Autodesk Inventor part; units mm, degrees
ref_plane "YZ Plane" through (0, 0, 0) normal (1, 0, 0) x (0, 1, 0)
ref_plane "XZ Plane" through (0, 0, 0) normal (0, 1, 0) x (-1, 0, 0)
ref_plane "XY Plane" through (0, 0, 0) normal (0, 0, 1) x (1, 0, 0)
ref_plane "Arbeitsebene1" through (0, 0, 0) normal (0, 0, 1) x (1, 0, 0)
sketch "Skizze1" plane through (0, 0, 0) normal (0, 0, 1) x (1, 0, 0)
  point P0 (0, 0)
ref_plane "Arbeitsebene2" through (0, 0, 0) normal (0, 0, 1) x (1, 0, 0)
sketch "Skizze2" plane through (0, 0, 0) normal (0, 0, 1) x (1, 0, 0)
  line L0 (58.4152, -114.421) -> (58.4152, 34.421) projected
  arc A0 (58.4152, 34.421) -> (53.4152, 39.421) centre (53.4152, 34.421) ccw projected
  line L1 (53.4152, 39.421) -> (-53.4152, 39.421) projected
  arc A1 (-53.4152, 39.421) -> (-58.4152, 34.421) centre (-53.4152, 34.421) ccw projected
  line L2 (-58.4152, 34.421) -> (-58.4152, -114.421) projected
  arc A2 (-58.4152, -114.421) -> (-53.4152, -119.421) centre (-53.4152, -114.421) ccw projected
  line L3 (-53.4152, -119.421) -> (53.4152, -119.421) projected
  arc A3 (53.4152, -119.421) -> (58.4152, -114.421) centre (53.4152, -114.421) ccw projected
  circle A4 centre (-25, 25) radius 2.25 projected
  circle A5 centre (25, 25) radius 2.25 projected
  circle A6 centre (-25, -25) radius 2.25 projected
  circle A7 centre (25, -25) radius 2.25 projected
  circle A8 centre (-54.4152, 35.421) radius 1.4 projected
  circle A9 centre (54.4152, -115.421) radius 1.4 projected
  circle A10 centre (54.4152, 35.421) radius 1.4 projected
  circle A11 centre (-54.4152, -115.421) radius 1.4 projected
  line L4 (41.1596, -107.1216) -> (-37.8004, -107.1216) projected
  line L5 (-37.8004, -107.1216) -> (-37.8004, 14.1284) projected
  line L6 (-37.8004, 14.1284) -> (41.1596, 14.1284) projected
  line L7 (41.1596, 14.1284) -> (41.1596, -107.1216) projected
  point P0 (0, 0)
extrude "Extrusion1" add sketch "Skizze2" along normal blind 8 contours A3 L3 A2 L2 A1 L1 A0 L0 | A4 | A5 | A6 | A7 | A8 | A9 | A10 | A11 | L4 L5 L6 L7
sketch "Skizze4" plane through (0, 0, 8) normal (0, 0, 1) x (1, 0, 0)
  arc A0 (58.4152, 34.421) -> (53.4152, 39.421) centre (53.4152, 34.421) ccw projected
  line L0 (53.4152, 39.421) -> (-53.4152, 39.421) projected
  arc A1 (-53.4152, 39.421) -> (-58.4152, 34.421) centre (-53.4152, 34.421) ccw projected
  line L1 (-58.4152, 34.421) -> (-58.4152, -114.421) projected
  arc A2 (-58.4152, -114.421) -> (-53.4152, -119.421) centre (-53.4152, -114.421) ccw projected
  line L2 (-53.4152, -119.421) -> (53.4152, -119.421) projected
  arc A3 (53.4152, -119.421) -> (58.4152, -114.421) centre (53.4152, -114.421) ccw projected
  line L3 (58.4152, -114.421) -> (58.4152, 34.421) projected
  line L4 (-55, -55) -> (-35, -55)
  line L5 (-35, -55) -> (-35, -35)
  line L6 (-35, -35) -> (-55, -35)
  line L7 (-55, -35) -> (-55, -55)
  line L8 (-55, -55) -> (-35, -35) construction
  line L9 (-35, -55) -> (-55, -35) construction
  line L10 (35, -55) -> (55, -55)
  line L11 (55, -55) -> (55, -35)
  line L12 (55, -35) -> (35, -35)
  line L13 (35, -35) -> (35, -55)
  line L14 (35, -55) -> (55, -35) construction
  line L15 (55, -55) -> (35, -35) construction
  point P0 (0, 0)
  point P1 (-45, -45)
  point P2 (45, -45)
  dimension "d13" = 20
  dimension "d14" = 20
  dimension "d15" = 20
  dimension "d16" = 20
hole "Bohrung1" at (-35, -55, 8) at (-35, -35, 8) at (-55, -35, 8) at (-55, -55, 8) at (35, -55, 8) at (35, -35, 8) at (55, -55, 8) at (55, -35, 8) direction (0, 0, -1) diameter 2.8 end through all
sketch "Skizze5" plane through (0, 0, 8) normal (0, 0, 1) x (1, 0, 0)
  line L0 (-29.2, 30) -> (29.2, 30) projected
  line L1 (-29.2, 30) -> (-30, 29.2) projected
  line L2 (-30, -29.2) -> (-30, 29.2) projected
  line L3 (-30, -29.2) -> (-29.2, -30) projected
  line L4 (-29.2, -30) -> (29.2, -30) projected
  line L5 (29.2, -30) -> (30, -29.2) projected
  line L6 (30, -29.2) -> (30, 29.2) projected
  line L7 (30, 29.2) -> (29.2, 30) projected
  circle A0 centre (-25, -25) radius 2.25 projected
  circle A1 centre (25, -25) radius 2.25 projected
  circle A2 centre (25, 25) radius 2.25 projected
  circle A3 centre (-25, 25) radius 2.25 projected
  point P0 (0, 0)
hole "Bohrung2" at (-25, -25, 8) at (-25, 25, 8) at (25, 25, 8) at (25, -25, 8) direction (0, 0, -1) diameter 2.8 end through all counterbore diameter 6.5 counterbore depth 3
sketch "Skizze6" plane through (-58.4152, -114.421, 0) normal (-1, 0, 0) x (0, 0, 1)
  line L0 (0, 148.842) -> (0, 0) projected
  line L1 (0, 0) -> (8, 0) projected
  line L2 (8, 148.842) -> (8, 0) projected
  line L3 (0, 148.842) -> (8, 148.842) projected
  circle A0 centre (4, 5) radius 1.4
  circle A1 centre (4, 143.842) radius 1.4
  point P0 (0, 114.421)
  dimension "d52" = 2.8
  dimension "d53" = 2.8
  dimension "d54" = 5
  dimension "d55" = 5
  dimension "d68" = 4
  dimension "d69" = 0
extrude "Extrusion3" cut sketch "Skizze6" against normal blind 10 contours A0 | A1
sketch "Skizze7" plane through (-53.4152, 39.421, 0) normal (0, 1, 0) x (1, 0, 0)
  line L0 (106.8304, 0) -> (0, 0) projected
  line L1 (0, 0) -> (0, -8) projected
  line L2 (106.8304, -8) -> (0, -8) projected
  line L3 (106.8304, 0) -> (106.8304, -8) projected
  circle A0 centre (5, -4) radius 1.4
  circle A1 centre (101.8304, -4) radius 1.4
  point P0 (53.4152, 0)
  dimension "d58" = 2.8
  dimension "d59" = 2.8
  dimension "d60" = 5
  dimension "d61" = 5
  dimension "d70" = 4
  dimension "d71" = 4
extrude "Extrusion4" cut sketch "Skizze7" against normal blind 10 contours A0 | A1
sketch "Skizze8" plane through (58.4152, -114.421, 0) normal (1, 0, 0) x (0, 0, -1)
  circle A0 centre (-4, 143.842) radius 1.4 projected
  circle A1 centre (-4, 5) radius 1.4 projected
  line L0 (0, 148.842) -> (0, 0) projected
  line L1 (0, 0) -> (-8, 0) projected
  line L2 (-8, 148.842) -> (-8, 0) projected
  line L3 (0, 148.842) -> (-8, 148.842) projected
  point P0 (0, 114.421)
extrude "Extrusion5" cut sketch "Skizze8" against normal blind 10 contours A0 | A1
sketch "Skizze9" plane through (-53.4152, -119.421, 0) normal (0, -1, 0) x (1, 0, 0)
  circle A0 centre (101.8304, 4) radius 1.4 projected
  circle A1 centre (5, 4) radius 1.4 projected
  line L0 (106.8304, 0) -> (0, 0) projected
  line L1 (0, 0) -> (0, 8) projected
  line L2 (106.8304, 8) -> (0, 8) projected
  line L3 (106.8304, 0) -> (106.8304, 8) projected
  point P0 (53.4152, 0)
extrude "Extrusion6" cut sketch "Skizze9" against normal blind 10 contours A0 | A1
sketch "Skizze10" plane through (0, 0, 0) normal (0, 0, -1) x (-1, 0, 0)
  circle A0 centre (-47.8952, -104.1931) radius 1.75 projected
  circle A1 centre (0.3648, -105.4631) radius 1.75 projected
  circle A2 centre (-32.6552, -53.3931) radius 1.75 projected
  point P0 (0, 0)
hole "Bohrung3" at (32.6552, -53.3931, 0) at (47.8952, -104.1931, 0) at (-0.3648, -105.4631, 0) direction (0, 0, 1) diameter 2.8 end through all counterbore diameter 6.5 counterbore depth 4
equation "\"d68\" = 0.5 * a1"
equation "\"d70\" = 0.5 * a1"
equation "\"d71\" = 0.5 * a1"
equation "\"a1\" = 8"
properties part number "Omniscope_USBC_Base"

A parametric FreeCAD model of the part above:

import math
import FreeCAD as App
import Part
import Sketcher
from FreeCAD import Vector

doc = App.newDocument("Part")
body = doc.addObject("PartDesign::Body", "Body")

sketch1 = doc.addObject("Sketcher::SketchObject", "Sketch")
body.addObject(sketch1)
sketch1.AttachmentSupport = (doc.XY_Plane, [""])
sketch1.MapMode = "FlatFace"
sketch1.addGeometry([
    Part.ArcOfCircle(Part.Circle(Vector(53, -114, 0), Vector(0, 0, 1), 5), math.radians(-90), math.radians(0)),
    Part.LineSegment(Vector(58, -114, 0), Vector(58, 34, 0)),
    Part.ArcOfCircle(Part.Circle(Vector(53, 34, 0), Vector(0, 0, 1), 5), math.radians(0), math.radians(90)),
    Part.LineSegment(Vector(53, 39, 0), Vector(-53, 39, 0)),
    Part.ArcOfCircle(Part.Circle(Vector(-53, 34, 0), Vector(0, 0, 1), 5), math.radians(90), math.radians(180)),
    Part.LineSegment(Vector(-58, 34, 0), Vector(-58, -114, 0)),
    Part.ArcOfCircle(Part.Circle(Vector(-53, -114, 0), Vector(0, 0, 1), 5), math.radians(180), math.radians(270)),
    Part.LineSegment(Vector(-53, -119, 0), Vector(53, -119, 0)),
], False)
sketch1.addConstraint([
    Sketcher.Constraint("Tangent", 0, 2, 1, 1),
    Sketcher.Constraint("Tangent", 1, 2, 2, 1),
    Sketcher.Constraint("Tangent", 2, 2, 3, 1),
    Sketcher.Constraint("Tangent", 3, 2, 4, 1),
    Sketcher.Constraint("Tangent", 4, 2, 5, 1),
    Sketcher.Constraint("Tangent", 5, 2, 6, 1),
    Sketcher.Constraint("Tangent", 6, 2, 7, 1),
    Sketcher.Constraint("Tangent", 7, 2, 0, 1),
    Sketcher.Constraint("Vertical", 1),
    Sketcher.Constraint("Horizontal", 3),
    Sketcher.Constraint("Vertical", 5),
    Sketcher.Constraint("Horizontal", 7),
    Sketcher.Constraint("Equal", 0, 2),
    Sketcher.Constraint("Equal", 2, 4),
    Sketcher.Constraint("Equal", 4, 6),
    Sketcher.Constraint("Radius", 0, 5.0),
    Sketcher.Constraint("DistanceY", 1, 1, 1, 2, 148.842),
    Sketcher.Constraint("DistanceX", 3, 2, 3, 1, 106.8304),
    Sketcher.Constraint("DistanceY", 0, 3, -1, 1, 114.421),
    Sketcher.Constraint("DistanceX", -1, 1, 0, 3, 53.4152),
])
pad1 = doc.addObject("PartDesign::Pad", "Pad")
body.addObject(pad1)
pad1.Profile = sketch1
pad1.Length = 8

sketch2 = doc.addObject("Sketcher::SketchObject", "Sketch001")
body.addObject(sketch2)
sketch2.AttachmentSupport = (doc.XY_Plane, [""])
sketch2.MapMode = "FlatFace"
sketch2.AttachmentOffset = App.Placement(Vector(0, 0, 8), App.Rotation())
sketch2.addGeometry([
    Part.Circle(Vector(-35, -55, 0), Vector(0, 0, 1), 1.4),
    Part.Circle(Vector(-35, -35, 0), Vector(0, 0, 1), 1.4),
    Part.Circle(Vector(-55, -35, 0), Vector(0, 0, 1), 1.4),
    Part.Circle(Vector(-55, -55, 0), Vector(0, 0, 1), 1.4),
    Part.Circle(Vector(35, -55, 0), Vector(0, 0, 1), 1.4),
    Part.Circle(Vector(35, -35, 0), Vector(0, 0, 1), 1.4),
    Part.Circle(Vector(55, -55, 0), Vector(0, 0, 1), 1.4),
    Part.Circle(Vector(55, -35, 0), Vector(0, 0, 1), 1.4),
], False)
sketch2.addConstraint([
    Sketcher.Constraint("Equal", 0, 1),
    Sketcher.Constraint("Equal", 1, 2),
    Sketcher.Constraint("Equal", 2, 3),
    Sketcher.Constraint("Equal", 3, 4),
    Sketcher.Constraint("Equal", 4, 5),
    Sketcher.Constraint("Equal", 5, 6),
    Sketcher.Constraint("Equal", 6, 7),
    Sketcher.Constraint("Symmetric", 0, 3, 4, 3, -2),
    Sketcher.Constraint("Symmetric", 1, 3, 5, 3, -2),
    Sketcher.Constraint("Symmetric", 3, 3, 6, 3, -2),
    Sketcher.Constraint("Symmetric", 2, 3, 7, 3, -2),
    Sketcher.Constraint("Horizontal", 1, 3, 2, 3),
    Sketcher.Constraint("Horizontal", 0, 3, 3, 3),
    Sketcher.Constraint("Vertical", 0, 3, 1, 3),
    Sketcher.Constraint("Vertical", 2, 3, 3, 3),
    Sketcher.Constraint("Diameter", 0, 2.8),
    Sketcher.Constraint("DistanceX", 0, 3, -1, 1, 35.0),
    Sketcher.Constraint("DistanceY", 0, 3, -1, 1, 55.0),
    Sketcher.Constraint("DistanceY", 1, 3, -1, 1, 35.0),
    Sketcher.Constraint("DistanceX", 2, 3, -1, 1, 55.0),
])
doc.recompute()
hole = doc.addObject("PartDesign::Hole", "Hole")
body.addObject(hole)
hole.Profile = sketch2
hole.ThreadType = "None"
hole.Diameter = 2.8
hole.DepthType = "ThroughAll"

sketch3 = doc.addObject("Sketcher::SketchObject", "Sketch002")
body.addObject(sketch3)
sketch3.AttachmentSupport = (doc.XY_Plane, [""])
sketch3.MapMode = "FlatFace"
sketch3.AttachmentOffset = App.Placement(Vector(0, 0, 8), App.Rotation())
sketch3.addGeometry([
    Part.Circle(Vector(-25, -25, 0), Vector(0, 0, 1), 1.4),
    Part.Circle(Vector(-25, 25, 0), Vector(0, 0, 1), 1.4),
    Part.Circle(Vector(25, 25, 0), Vector(0, 0, 1), 1.4),
    Part.Circle(Vector(25, -25, 0), Vector(0, 0, 1), 1.4),
], False)
sketch3.addConstraint([
    Sketcher.Constraint("Equal", 0, 1),
    Sketcher.Constraint("Equal", 1, 2),
    Sketcher.Constraint("Equal", 2, 3),
    Sketcher.Constraint("Symmetric", 0, 3, 2, 3, -1, 1),
    Sketcher.Constraint("Symmetric", 1, 3, 3, 3, -1, 1),
    Sketcher.Constraint("Symmetric", 1, 3, 2, 3, -2),
    Sketcher.Constraint("Diameter", 0, 2.8),
    Sketcher.Constraint("DistanceX", 0, 3, -1, 1, 25.0),
    Sketcher.Constraint("DistanceY", 0, 3, -1, 1, 25.0),
])
doc.recompute()
hole2 = doc.addObject("PartDesign::Hole", "Hole001")
body.addObject(hole2)
hole2.Profile = sketch3
hole2.ThreadType = "None"
hole2.Diameter = 2.8
hole2.DepthType = "ThroughAll"
hole2.HoleCutType = "Counterbore"
hole2.HoleCutDiameter = 6.5
hole2.HoleCutDepth = 3

sketch4 = doc.addObject("Sketcher::SketchObject", "Sketch003")
body.addObject(sketch4)
sketch4.AttachmentSupport = (doc.YZ_Plane, [""])
sketch4.MapMode = "FlatFace"
sketch4.AttachmentOffset = App.Placement(Vector(0, 0, -58.4152), App.Rotation())
sketch4.addGeometry([
    Part.Circle(Vector(-109.4, 4, 0), Vector(0, 0, 1), 1.4),
    Part.Circle(Vector(29.4, 4, 0), Vector(0, 0, 1), 1.4),
], False)
sketch4.addConstraint([
    Sketcher.Constraint("Equal", 0, 1),
    Sketcher.Constraint("Horizontal", 0, 3, 1, 3),
    Sketcher.Constraint("Diameter", 0, 2.8),
    Sketcher.Constraint("DistanceY", -1, 1, 0, 3, 4.0),
    Sketcher.Constraint("DistanceX", 0, 3, -1, 1, 109.421),
    Sketcher.Constraint("DistanceX", -1, 1, 1, 3, 29.421),
])
pocket1 = doc.addObject("PartDesign::Pocket", "Pocket")
body.addObject(pocket1)
pocket1.Profile = sketch4
pocket1.Length = 10
pocket1.Reversed = True

sketch5 = doc.addObject("Sketcher::SketchObject", "Sketch004")
body.addObject(sketch5)
sketch5.AttachmentSupport = (doc.XZ_Plane, [""])
sketch5.MapMode = "FlatFace"
sketch5.AttachmentOffset = App.Placement(Vector(0, 0, -39.421), App.Rotation())
sketch5.addGeometry([
    Part.Circle(Vector(-48.4, 4, 0), Vector(0, 0, 1), 1.4),
    Part.Circle(Vector(48.4, 4, 0), Vector(0, 0, 1), 1.4),
], False)
sketch5.addConstraint([
    Sketcher.Constraint("Equal", 0, 1),
    Sketcher.Constraint("Symmetric", 0, 3, 1, 3, -2),
    Sketcher.Constraint("Diameter", 0, 2.8),
    Sketcher.Constraint("DistanceY", -1, 1, 0, 3, 4.0),
    Sketcher.Constraint("DistanceX", 0, 3, -1, 1, 48.4152),
])
pocket2 = doc.addObject("PartDesign::Pocket", "Pocket001")
body.addObject(pocket2)
pocket2.Profile = sketch5
pocket2.Length = 10
pocket2.Reversed = True

sketch6 = doc.addObject("Sketcher::SketchObject", "Sketch005")
body.addObject(sketch6)
sketch6.AttachmentSupport = (doc.YZ_Plane, [""])
sketch6.MapMode = "FlatFace"
sketch6.AttachmentOffset = App.Placement(Vector(0, 0, 58.4152), App.Rotation())
sketch6.addGeometry([
    Part.Circle(Vector(29.4, 4, 0), Vector(0, 0, 1), 1.4),
    Part.Circle(Vector(-109.4, 4, 0), Vector(0, 0, 1), 1.4),
], False)
sketch6.addConstraint([
    Sketcher.Constraint("Equal", 0, 1),
    Sketcher.Constraint("Horizontal", 0, 3, 1, 3),
    Sketcher.Constraint("Diameter", 0, 2.8),
    Sketcher.Constraint("DistanceY", -1, 1, 0, 3, 4.0),
    Sketcher.Constraint("DistanceX", -1, 1, 0, 3, 29.421),
    Sketcher.Constraint("DistanceX", 1, 3, -1, 1, 109.421),
])
pocket3 = doc.addObject("PartDesign::Pocket", "Pocket002")
body.addObject(pocket3)
pocket3.Profile = sketch6
pocket3.Length = 10

sketch7 = doc.addObject("Sketcher::SketchObject", "Sketch006")
body.addObject(sketch7)
sketch7.AttachmentSupport = (doc.XZ_Plane, [""])
sketch7.MapMode = "FlatFace"
sketch7.AttachmentOffset = App.Placement(Vector(0, 0, 119.421), App.Rotation())
sketch7.addGeometry([
    Part.Circle(Vector(48.4, 4, 0), Vector(0, 0, 1), 1.4),
    Part.Circle(Vector(-48.4, 4, 0), Vector(0, 0, 1), 1.4),
], False)
sketch7.addConstraint([
    Sketcher.Constraint("Equal", 0, 1),
    Sketcher.Constraint("Symmetric", 0, 3, 1, 3, -2),
    Sketcher.Constraint("Diameter", 0, 2.8),
    Sketcher.Constraint("DistanceY", -1, 1, 0, 3, 4.0),
    Sketcher.Constraint("DistanceX", -1, 1, 0, 3, 48.4152),
])
pocket4 = doc.addObject("PartDesign::Pocket", "Pocket003")
body.addObject(pocket4)
pocket4.Profile = sketch7
pocket4.Length = 10

sketch8 = doc.addObject("Sketcher::SketchObject", "Sketch007")
body.addObject(sketch8)
sketch8.AttachmentSupport = (doc.XY_Plane, [""])
sketch8.MapMode = "FlatFace"
sketch8.addGeometry([
    Part.Circle(Vector(32.7, -53.4, 0), Vector(0, 0, 1), 1.4),
    Part.Circle(Vector(47.9, -104.2, 0), Vector(0, 0, 1), 1.4),
    Part.Circle(Vector(-0.4, -105.5, 0), Vector(0, 0, 1), 1.4),
], False)
sketch8.addConstraint([
    Sketcher.Constraint("Equal", 0, 1),
    Sketcher.Constraint("Equal", 1, 2),
    Sketcher.Constraint("Diameter", 0, 2.8),
    Sketcher.Constraint("DistanceY", 1, 3, 0, 3, 50.8),
    Sketcher.Constraint("DistanceX", 0, 3, 1, 3, 15.24),
    Sketcher.Constraint("DistanceX", 2, 3, 1, 3, 48.26),
    Sketcher.Constraint("DistanceY", 2, 3, 1, 3, 1.27),
    Sketcher.Constraint("DistanceY", 0, 3, -1, 1, 53.393),
    Sketcher.Constraint("DistanceX", -1, 1, 0, 3, 32.6552),
])
doc.recompute()
hole3 = doc.addObject("PartDesign::Hole", "Hole002")
body.addObject(hole3)
hole3.Profile = sketch8
hole3.ThreadType = "None"
hole3.Diameter = 2.8
hole3.DepthType = "ThroughAll"
hole3.HoleCutType = "Counterbore"
hole3.HoleCutDiameter = 6.5
hole3.HoleCutDepth = 4
hole3.Reversed = True

doc.recompute()
